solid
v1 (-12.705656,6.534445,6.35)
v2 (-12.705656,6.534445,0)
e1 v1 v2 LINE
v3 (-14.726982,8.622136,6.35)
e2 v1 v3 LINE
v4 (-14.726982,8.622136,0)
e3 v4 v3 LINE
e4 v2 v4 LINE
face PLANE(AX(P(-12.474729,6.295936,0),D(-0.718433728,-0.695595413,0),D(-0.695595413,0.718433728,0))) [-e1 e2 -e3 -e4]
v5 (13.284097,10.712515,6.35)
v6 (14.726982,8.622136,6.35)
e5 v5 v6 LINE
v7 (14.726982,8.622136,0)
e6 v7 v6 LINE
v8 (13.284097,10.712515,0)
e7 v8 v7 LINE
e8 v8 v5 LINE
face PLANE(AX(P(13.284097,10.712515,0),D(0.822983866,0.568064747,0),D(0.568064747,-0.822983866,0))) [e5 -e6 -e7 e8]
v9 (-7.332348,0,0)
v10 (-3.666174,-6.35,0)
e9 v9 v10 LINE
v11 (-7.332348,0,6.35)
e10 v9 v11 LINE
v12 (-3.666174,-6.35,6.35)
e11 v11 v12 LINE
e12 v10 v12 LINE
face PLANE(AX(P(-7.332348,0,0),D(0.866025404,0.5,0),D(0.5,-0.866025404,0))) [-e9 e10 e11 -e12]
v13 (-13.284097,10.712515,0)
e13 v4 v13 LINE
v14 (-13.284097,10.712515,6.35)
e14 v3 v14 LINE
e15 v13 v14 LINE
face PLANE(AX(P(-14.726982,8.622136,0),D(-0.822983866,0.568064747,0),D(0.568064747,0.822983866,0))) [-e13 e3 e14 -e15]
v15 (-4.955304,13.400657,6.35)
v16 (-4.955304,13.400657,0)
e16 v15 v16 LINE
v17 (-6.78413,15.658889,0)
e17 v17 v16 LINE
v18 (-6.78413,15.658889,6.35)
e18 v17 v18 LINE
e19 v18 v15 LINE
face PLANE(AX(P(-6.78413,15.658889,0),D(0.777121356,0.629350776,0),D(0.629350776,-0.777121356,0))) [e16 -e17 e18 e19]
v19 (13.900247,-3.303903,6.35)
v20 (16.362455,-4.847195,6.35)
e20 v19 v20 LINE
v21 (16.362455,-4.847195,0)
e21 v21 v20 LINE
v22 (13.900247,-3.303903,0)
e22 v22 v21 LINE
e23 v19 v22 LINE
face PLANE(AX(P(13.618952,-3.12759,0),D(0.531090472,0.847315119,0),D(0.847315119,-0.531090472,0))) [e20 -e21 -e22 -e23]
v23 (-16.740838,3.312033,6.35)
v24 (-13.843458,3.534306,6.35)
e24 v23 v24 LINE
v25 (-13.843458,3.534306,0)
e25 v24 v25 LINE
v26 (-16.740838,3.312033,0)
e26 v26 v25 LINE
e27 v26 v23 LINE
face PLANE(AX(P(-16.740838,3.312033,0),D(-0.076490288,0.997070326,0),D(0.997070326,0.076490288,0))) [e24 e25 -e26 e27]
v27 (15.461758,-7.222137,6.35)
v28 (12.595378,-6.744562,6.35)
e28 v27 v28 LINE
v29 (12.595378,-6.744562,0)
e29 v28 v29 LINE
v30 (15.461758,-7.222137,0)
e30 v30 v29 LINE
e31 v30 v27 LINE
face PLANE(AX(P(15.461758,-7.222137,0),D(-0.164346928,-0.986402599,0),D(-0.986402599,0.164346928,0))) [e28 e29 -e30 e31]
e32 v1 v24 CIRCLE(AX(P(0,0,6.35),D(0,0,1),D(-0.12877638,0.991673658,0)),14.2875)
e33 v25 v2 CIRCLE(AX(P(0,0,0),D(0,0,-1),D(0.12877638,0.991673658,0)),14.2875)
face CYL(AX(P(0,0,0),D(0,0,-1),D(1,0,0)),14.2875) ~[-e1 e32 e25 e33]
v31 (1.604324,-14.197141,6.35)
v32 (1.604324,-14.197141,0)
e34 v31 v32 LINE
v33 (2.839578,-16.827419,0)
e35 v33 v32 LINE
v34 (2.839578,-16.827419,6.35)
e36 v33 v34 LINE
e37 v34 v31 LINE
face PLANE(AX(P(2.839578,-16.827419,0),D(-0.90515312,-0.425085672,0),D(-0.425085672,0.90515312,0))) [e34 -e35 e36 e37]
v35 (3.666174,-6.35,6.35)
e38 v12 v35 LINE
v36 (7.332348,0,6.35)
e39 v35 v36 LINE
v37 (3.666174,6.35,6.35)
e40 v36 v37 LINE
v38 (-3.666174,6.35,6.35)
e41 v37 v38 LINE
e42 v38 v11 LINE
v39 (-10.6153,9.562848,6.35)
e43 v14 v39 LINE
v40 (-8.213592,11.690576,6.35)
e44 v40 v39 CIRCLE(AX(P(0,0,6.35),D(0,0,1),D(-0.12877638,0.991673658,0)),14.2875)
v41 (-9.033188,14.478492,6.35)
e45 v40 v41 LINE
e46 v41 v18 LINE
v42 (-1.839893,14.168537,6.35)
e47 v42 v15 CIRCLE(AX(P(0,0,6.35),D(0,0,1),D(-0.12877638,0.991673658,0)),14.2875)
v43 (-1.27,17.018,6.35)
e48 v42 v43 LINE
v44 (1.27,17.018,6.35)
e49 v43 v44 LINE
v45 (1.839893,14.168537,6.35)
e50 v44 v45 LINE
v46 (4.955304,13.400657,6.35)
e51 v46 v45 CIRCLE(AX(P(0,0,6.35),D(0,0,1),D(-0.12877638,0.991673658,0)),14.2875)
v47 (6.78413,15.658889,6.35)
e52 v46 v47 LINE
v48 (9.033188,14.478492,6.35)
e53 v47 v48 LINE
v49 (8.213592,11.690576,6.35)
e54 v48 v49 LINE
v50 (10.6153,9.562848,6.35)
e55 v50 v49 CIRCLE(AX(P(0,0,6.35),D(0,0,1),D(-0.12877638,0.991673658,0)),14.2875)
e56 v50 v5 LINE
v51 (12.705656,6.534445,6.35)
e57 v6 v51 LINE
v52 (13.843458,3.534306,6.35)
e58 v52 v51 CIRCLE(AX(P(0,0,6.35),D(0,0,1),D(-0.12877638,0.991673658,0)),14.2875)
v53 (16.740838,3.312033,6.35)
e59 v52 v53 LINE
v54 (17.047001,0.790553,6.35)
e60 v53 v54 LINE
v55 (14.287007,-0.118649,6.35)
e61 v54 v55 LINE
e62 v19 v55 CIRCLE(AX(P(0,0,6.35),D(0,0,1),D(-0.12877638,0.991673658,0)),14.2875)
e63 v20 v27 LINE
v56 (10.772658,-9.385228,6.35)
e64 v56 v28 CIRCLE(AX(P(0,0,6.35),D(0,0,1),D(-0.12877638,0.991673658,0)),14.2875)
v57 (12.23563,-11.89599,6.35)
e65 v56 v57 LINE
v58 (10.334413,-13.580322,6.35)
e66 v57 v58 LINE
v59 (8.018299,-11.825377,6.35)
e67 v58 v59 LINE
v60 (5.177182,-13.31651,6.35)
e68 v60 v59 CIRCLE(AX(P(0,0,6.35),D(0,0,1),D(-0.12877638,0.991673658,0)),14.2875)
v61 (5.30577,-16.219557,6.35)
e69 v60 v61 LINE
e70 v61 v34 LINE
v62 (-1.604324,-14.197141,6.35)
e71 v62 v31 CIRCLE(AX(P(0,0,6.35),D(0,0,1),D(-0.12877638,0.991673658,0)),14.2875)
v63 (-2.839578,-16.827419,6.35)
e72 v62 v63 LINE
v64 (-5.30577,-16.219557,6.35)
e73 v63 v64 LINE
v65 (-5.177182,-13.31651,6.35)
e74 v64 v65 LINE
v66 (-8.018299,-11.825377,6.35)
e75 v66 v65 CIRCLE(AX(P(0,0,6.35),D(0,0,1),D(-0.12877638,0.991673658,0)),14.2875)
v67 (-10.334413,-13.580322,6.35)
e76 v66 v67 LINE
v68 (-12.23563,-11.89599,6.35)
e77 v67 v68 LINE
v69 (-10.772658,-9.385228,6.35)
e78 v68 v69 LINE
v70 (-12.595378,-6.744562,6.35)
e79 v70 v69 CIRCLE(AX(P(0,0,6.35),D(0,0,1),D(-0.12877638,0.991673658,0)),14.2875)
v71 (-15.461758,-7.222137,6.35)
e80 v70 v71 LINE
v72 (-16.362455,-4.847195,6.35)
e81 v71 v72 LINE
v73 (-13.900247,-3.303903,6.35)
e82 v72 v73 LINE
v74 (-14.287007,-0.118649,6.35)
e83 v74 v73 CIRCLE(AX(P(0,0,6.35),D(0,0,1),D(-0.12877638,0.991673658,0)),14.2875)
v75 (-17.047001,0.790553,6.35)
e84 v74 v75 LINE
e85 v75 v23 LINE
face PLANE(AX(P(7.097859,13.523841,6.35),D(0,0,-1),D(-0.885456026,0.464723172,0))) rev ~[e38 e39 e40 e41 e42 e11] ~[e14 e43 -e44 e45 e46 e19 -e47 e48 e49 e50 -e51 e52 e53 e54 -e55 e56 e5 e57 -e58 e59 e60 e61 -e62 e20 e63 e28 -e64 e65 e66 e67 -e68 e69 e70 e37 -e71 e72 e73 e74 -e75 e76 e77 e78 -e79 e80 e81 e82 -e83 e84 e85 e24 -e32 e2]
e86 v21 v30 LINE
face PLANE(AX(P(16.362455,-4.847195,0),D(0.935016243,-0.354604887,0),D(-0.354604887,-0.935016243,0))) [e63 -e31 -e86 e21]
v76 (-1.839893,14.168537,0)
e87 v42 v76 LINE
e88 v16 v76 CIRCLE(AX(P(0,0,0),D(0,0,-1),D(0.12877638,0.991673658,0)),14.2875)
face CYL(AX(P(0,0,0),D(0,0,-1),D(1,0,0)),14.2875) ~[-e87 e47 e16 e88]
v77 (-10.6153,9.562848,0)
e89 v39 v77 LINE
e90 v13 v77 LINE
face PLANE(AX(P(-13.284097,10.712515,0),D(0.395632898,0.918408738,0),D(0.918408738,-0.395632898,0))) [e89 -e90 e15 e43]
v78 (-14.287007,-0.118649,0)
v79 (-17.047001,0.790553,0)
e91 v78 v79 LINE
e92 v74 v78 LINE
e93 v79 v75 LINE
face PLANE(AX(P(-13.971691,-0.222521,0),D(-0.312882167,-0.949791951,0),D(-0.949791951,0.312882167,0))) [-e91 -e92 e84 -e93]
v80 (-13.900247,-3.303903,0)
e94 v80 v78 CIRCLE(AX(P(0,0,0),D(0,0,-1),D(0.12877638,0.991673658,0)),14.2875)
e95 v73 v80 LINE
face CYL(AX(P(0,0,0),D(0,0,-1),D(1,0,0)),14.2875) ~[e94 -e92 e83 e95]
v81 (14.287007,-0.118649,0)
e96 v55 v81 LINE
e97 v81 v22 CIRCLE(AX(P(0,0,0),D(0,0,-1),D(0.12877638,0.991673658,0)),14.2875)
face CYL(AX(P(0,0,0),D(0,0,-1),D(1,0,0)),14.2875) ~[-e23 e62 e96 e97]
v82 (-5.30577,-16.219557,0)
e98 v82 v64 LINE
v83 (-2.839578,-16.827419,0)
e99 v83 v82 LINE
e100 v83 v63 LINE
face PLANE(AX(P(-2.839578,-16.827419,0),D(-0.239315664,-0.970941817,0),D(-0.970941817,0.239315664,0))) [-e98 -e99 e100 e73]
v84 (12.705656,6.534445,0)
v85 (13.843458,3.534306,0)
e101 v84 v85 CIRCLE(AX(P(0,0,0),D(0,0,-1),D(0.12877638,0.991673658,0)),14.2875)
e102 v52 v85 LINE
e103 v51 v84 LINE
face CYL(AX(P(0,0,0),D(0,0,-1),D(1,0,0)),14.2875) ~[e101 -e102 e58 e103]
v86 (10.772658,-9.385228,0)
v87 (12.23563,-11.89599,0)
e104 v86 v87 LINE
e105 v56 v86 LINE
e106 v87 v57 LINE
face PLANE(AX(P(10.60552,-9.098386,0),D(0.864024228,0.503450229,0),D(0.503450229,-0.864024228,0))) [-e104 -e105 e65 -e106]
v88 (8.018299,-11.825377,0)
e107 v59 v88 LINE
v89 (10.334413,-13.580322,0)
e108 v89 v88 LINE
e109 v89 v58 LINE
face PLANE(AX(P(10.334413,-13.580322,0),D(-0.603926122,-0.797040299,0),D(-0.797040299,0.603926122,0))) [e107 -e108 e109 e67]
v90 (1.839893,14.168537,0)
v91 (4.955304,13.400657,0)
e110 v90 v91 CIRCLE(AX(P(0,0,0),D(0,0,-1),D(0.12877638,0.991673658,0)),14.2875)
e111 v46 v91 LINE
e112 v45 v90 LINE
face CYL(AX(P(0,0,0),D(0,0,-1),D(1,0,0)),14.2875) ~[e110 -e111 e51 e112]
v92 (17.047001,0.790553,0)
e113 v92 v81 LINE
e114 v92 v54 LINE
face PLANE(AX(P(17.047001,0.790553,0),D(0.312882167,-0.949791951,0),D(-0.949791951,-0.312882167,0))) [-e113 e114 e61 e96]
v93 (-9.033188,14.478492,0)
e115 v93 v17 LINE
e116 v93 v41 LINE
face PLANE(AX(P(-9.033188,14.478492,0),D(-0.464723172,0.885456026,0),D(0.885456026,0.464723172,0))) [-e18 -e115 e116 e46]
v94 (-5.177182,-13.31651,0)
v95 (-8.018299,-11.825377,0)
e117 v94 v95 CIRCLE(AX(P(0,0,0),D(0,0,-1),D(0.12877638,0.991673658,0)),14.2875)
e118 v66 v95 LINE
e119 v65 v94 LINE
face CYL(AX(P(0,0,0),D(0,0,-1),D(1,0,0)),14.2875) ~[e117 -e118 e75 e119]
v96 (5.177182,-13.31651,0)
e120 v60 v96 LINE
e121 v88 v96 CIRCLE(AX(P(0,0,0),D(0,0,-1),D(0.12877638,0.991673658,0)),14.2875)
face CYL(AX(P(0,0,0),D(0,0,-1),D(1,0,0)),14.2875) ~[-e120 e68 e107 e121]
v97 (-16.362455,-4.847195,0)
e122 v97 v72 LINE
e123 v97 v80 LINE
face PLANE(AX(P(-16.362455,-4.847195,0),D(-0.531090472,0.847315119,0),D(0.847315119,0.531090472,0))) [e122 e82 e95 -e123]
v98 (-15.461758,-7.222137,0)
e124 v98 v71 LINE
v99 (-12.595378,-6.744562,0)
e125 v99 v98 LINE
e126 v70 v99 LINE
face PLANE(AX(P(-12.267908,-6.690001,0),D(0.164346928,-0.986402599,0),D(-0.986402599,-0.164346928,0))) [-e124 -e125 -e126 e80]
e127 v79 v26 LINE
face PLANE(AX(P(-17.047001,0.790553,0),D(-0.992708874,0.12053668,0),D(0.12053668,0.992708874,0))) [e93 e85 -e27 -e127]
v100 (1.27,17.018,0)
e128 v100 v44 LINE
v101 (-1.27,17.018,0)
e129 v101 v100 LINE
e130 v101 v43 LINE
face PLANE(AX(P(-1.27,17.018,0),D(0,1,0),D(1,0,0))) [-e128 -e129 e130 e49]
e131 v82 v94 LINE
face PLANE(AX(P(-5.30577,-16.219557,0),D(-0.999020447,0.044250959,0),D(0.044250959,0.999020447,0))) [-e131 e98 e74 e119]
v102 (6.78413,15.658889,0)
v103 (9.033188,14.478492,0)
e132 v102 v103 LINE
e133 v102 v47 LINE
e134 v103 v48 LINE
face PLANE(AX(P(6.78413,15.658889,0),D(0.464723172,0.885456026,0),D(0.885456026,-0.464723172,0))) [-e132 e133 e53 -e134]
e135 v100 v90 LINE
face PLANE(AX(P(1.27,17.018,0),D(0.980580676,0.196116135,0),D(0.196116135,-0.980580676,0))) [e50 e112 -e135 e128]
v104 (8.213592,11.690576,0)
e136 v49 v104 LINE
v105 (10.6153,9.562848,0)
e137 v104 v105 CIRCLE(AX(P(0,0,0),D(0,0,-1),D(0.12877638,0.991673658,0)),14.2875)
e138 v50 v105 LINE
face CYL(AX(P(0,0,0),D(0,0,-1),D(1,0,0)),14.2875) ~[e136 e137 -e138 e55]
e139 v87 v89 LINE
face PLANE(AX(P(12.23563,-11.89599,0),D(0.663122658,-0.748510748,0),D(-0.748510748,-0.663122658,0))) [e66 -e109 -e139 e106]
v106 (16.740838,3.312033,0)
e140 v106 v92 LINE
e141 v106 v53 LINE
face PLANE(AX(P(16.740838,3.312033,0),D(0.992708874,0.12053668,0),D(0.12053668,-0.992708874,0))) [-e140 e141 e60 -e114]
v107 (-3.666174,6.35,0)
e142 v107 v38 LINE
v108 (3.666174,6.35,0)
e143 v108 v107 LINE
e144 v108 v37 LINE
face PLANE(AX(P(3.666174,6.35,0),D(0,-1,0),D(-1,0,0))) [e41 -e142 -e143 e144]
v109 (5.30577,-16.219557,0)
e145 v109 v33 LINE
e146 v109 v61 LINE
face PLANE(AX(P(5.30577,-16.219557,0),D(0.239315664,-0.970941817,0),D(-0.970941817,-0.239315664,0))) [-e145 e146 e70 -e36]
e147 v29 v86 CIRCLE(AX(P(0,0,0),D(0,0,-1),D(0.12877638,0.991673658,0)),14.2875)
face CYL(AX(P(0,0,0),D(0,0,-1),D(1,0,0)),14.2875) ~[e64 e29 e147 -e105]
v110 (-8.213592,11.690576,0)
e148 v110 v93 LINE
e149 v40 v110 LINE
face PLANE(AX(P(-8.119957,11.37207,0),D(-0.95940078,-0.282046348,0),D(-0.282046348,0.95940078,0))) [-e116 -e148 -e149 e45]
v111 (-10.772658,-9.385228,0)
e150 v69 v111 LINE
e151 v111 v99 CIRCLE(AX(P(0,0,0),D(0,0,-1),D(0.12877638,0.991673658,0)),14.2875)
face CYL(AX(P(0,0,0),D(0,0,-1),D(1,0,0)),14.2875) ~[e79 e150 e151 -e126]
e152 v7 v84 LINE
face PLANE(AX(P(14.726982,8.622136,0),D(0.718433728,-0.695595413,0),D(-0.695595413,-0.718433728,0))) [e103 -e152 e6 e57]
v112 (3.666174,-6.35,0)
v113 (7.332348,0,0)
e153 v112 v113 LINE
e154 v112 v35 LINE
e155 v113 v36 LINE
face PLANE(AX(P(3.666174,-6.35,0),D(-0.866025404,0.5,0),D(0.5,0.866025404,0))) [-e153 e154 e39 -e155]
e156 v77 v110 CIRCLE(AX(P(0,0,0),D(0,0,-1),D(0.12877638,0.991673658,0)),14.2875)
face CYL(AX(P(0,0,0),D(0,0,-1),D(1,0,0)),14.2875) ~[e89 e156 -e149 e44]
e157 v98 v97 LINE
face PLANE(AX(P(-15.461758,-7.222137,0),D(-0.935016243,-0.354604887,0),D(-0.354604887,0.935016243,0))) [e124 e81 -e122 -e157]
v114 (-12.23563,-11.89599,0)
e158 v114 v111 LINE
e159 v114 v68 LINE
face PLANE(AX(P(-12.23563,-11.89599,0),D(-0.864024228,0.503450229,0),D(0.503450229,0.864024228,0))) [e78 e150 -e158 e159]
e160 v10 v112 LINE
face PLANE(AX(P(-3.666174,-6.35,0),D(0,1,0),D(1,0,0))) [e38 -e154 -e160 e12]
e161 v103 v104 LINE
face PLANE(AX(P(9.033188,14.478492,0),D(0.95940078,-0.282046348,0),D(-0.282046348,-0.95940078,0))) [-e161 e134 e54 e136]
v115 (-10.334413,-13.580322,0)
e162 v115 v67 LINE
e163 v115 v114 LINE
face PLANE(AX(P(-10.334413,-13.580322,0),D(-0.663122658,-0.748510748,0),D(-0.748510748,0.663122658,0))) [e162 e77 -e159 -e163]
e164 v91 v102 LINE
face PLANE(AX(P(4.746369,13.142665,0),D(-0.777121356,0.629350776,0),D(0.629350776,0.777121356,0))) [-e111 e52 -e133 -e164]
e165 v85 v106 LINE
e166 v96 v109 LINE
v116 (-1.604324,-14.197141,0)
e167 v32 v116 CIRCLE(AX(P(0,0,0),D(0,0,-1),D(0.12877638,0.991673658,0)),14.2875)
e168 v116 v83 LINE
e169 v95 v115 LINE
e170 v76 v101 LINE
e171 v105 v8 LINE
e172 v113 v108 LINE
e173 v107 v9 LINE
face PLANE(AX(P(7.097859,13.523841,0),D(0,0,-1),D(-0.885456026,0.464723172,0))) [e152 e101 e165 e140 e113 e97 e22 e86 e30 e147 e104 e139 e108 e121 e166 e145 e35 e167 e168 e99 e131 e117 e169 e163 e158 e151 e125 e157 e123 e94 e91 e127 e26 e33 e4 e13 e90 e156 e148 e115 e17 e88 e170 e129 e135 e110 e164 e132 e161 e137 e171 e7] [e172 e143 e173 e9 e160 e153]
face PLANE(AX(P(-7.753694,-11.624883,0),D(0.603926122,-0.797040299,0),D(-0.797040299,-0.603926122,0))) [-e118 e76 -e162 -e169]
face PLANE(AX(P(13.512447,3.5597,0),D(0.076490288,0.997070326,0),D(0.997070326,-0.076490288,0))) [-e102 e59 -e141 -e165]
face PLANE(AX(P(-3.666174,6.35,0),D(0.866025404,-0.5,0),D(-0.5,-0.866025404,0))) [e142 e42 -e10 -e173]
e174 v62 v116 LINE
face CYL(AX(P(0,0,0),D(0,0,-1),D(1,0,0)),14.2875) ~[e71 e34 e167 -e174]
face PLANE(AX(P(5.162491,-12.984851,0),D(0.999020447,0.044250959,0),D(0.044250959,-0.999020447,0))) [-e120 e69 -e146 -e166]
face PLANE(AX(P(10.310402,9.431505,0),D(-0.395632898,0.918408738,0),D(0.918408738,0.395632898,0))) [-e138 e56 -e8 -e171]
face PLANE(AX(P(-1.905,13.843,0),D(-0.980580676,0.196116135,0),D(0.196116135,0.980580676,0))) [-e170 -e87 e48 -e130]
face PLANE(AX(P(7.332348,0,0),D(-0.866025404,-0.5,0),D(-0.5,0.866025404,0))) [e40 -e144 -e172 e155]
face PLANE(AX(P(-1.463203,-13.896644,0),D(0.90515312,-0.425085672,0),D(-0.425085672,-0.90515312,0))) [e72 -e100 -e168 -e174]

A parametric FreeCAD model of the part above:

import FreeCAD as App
import Part
import Sketcher
Q = App.Units.Quantity

doc = App.newDocument("Part")
body = doc.addObject("PartDesign::Body", "Body")

# Sketch on XY plane
sketch1 = doc.addObject("Sketcher::SketchObject", "Sketch")
body.addObject(sketch1)
sketch1.AttachmentSupport = (doc.XY_Plane, [""])
sketch1.MapMode = "FlatFace"
sketch1.addGeometry([
    Part.Circle(App.Vector(0, 0, 0), App.Vector(0, 0, 1), 14),  # 0
    Part.LineSegment(App.Vector(4, 6, 0), App.Vector(7, 0, 0)),  # 1
    Part.LineSegment(App.Vector(7, 0, 0), App.Vector(4, -6, 0)),  # 2
    Part.LineSegment(App.Vector(4, -6, 0), App.Vector(-4, -6, 0)),  # 3
    Part.LineSegment(App.Vector(-4, -6, 0), App.Vector(-7, 0, 0)),  # 4
    Part.LineSegment(App.Vector(-7, 0, 0), App.Vector(-4, 6, 0)),  # 5
    Part.LineSegment(App.Vector(-4, 6, 0), App.Vector(4, 6, 0)),  # 6
], False)
sketch1.addConstraint([
    Sketcher.Constraint("Coincident", 1, 2, 2, 1),
    Sketcher.Constraint("Coincident", 2, 2, 3, 1),
    Sketcher.Constraint("Coincident", 3, 2, 4, 1),
    Sketcher.Constraint("Coincident", 4, 2, 5, 1),
    Sketcher.Constraint("Coincident", 5, 2, 6, 1),
    Sketcher.Constraint("Coincident", 6, 2, 1, 1),
    Sketcher.Constraint("Horizontal", 3),
    Sketcher.Constraint("Horizontal", 6),
    Sketcher.Constraint("Coincident", 0, 3, -1, 1),
    Sketcher.Constraint("Symmetric", 1, 2, 4, 2, -1, 1),
    Sketcher.Constraint("Symmetric", 2, 2, 5, 2, -1, 1),
    Sketcher.Constraint("PointOnObject", 1, 2, -1),
    Sketcher.Constraint("Parallel", 1, 4),
    Sketcher.Constraint("Vertical", 3, 2, 5, 2),
    Sketcher.Constraint("Diameter", 0, Q("1.125 in")),
    Sketcher.Constraint("Angle", 1, Q("-60 deg")),
    Sketcher.Constraint("DistanceY", 3, 2, 5, 2, Q("0.5 in")),
    Sketcher.Constraint("DistanceX", 3, 2, 3, 1, 7.332348),
])
pad1 = doc.addObject("PartDesign::Pad", "Pad")
body.addObject(pad1)
pad1.Profile = sketch1
pad1.Length = Q("0.25 in")

# Sketch on XY plane
sketch2 = doc.addObject("Sketcher::SketchObject", "Sketch001")
body.addObject(sketch2)
sketch2.AttachmentSupport = (doc.XY_Plane, [""])
sketch2.MapMode = "FlatFace"
sketch2.addGeometry([
    Part.LineSegment(App.Vector(1.3, 17, 0), App.Vector(-1.3, 17, 0)),
    Part.LineSegment(App.Vector(-1.3, 17, 0), App.Vector(-1.9, 13.8, 0)),
    Part.LineSegment(App.Vector(-1.9, 13.8, 0), App.Vector(1.9, 13.8, 0)),
    Part.LineSegment(App.Vector(1.9, 13.8, 0), App.Vector(1.3, 17, 0)),
], False)
sketch2.addConstraint([
    Sketcher.Constraint("Coincident", 0, 2, 1, 1),
    Sketcher.Constraint("Coincident", 1, 2, 2, 1),
    Sketcher.Constraint("Coincident", 2, 2, 3, 1),
    Sketcher.Constraint("Coincident", 3, 2, 0, 1),
    Sketcher.Constraint("Horizontal", 0),
    Sketcher.Constraint("Horizontal", 2),
    Sketcher.Constraint("Equal", 1, 3),
    Sketcher.Constraint("DistanceX", 0, 2, 0, 1, Q("0.1 in")),
    Sketcher.Constraint("DistanceX", 2, 1, 2, 2, Q("0.15 in")),
    Sketcher.Constraint("DistanceX", 0, 2, -1, 1, Q("0.05 in")),
    Sketcher.Constraint("DistanceY", -1, 1, 0, 2, Q("0.67 in")),
    Sketcher.Constraint("DistanceY", -1, 1, 1, 2, Q("0.545 in")),
])
pad2 = doc.addObject("PartDesign::Pad", "Pad001")
body.addObject(pad2)
pad2.Profile = sketch2
pad2.Length = Q("0.25 in")
doc.recompute()

polarpattern = doc.addObject("PartDesign::PolarPattern", "PolarPattern")
body.addObject(polarpattern)
polarpattern.Originals = [pad2]
polarpattern.Axis = (doc.Z_Axis, [""])
polarpattern.Angle = 360
polarpattern.Occurrences = 13
body.Tip = polarpattern

doc.recompute()
